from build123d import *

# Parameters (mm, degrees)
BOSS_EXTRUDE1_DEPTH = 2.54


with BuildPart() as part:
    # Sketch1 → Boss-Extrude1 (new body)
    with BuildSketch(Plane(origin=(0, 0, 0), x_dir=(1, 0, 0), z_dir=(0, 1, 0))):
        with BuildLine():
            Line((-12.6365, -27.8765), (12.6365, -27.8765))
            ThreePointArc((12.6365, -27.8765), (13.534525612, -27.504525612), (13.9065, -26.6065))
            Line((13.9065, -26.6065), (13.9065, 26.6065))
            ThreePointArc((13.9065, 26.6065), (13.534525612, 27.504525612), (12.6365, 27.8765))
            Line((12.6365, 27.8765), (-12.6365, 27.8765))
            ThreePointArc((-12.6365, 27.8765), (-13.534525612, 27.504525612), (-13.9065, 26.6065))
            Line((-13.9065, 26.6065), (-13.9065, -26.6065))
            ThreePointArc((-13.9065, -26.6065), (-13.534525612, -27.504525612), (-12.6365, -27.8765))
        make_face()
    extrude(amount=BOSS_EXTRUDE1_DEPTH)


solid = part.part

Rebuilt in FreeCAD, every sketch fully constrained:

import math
import FreeCAD as App
import Part
import Sketcher

V = App.Vector
Q = App.Units.Quantity

doc = App.newDocument("Part")
body = doc.addObject("PartDesign::Body", "Body")

# Sketch on XZ plane
sketch1 = body.newObject("Sketcher::SketchObject", "Sketch")
sketch1.AttachmentSupport = (doc.getObject("XZ_Plane"), [""])
sketch1.MapMode = "FlatFace"
sketch1.addGeometry([
    Part.LineSegment(V(-12.6, 27.9, 0), V(12.6, 27.9, 0)),  # 0
    Part.ArcOfCircle(Part.Circle(V(12.6, 26.6, 0), V(0, 0, 1), 1.3), math.radians(0), math.radians(90)),  # 1
    Part.LineSegment(V(13.9, 26.6, 0), V(13.9, -26.6, 0)),  # 2
    Part.ArcOfCircle(Part.Circle(V(12.6, -26.6, 0), V(0, 0, 1), 1.3), math.radians(-90), math.radians(0)),  # 3
    Part.LineSegment(V(12.6, -27.9, 0), V(-12.6, -27.9, 0)),  # 4
    Part.ArcOfCircle(Part.Circle(V(-12.6, -26.6, 0), V(0, 0, 1), 1.3), math.radians(180), math.radians(270)),  # 5
    Part.LineSegment(V(-13.9, -26.6, 0), V(-13.9, 26.6, 0)),  # 6
    Part.ArcOfCircle(Part.Circle(V(-12.6, 26.6, 0), V(0, 0, 1), 1.3), math.radians(90), math.radians(180)),  # 7
], False)
sketch1.addConstraint([
    Sketcher.Constraint("Tangent", 0, 2, 1, 2),
    Sketcher.Constraint("Tangent", 1, 1, 2, 1),
    Sketcher.Constraint("Tangent", 2, 2, 3, 2),
    Sketcher.Constraint("Tangent", 3, 1, 4, 1),
    Sketcher.Constraint("Tangent", 4, 2, 5, 2),
    Sketcher.Constraint("Tangent", 5, 1, 6, 1),
    Sketcher.Constraint("Tangent", 6, 2, 7, 2),
    Sketcher.Constraint("Tangent", 7, 1, 0, 1),
    Sketcher.Constraint("Horizontal", 0),
    Sketcher.Constraint("Vertical", 2),
    Sketcher.Constraint("Horizontal", 4),
    Sketcher.Constraint("Vertical", 6),
    Sketcher.Constraint("Equal", 1, 3),
    Sketcher.Constraint("Equal", 3, 5),
    Sketcher.Constraint("Equal", 5, 7),
    Sketcher.Constraint("Symmetric", 1, 3, 5, 3, -1, 1),
    Sketcher.Constraint("Radius", 1, Q("0.05 in")),
    Sketcher.Constraint("DistanceX", 0, 1, 0, 2, Q("0.995 in")),
    Sketcher.Constraint("DistanceY", 2, 2, 2, 1, Q("2.095 in")),
])
pad1 = body.newObject("PartDesign::Pad", "Pad")
pad1.Profile = sketch1
pad1.Length = Q("0.1 in")
pad1.Reversed = True

doc.recompute()
